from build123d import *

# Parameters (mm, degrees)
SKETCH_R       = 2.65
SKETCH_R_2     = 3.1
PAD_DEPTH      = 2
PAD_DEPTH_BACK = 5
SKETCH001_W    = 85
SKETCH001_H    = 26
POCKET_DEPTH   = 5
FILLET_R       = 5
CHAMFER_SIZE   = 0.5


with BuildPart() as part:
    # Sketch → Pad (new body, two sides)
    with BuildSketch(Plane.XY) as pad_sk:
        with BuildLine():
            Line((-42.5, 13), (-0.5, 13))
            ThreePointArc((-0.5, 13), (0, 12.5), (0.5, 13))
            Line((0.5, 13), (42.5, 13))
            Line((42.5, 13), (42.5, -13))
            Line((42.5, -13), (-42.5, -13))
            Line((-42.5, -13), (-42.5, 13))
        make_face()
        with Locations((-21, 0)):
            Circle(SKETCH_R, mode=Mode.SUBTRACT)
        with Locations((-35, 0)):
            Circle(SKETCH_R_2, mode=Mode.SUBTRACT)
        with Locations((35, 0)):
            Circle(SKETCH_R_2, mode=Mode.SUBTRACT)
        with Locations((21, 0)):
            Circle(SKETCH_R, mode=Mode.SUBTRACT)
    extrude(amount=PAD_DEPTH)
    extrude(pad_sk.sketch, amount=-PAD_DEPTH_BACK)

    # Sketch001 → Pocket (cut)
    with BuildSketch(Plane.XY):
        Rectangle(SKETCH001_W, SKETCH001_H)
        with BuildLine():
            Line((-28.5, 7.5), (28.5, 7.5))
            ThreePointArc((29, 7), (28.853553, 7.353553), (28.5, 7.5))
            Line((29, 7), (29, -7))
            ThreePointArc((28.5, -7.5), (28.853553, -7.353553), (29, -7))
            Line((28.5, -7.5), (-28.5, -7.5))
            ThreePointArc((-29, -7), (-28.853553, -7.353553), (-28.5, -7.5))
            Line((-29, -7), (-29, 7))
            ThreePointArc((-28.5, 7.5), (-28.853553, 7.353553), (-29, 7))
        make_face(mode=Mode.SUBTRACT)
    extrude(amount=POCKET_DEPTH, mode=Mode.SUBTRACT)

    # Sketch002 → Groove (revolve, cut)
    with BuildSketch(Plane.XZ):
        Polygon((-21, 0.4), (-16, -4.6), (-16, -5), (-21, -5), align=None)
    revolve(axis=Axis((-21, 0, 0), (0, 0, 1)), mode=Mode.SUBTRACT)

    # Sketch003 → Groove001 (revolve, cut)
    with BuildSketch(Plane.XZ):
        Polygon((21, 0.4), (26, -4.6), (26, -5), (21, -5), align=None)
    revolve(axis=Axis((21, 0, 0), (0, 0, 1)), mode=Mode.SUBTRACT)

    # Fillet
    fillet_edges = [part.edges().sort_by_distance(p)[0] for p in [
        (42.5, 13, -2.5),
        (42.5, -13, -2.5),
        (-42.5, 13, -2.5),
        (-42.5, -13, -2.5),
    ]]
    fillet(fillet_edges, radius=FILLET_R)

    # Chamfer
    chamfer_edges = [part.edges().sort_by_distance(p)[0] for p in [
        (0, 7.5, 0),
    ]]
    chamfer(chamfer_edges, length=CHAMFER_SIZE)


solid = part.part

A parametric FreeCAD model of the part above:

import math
import FreeCAD as App
import Part
import Sketcher

V = App.Vector
Q = App.Units.Quantity


def edges_at(feature, points):
    """Names of the edges that pass closest to the given points."""
    edges = feature.Shape.Edges
    near = lambda p: min(range(len(edges)), key=lambda i: edges[i].distToShape(Part.Vertex(*p))[0])
    return sorted({f"Edge{near(p) + 1}" for p in points})


def add_polygon(sketch, points):
    """Adds a closed chain of lines whose ends are joined by coincident constraints."""
    first, n = sketch.GeometryCount, len(points)
    for a, b in zip(points, points[1:] + points[:1]):
        sketch.addGeometry(Part.LineSegment(App.Vector(*a, 0), App.Vector(*b, 0)), False)
    for i in range(n):
        sketch.addConstraint(Sketcher.Constraint("Coincident", first + i, 2, first + (i + 1) % n, 1))

doc = App.newDocument("Part")
body = doc.addObject("PartDesign::Body", "Body")

# Sketch on XY plane
sketch1 = body.newObject("Sketcher::SketchObject", "Sketch")
sketch1.AttachmentSupport = (doc.getObject("XY_Plane"), [""])
sketch1.MapMode = "FlatFace"
sketch1.addGeometry([
    Part.LineSegment(V(-0.5, 13, 0), V(-42.5, 13, 0)),  # 0
    Part.LineSegment(V(-42.5, 13, 0), V(-42.5, -13, 0)),  # 1
    Part.LineSegment(V(-42.5, -13, 0), V(42.5, -13, 0)),  # 2
    Part.LineSegment(V(42.5, -13, 0), V(42.5, 13, 0)),  # 3
    Part.LineSegment(V(42.5, 13, 0), V(0.5, 13, 0)),  # 4
    Part.ArcOfCircle(Part.Circle(V(0, 13, 0), V(0, 0, 1), 0.5), math.radians(180), math.radians(360)),  # 5
    Part.Circle(V(35, 0, 0), V(0, 0, 1), 3.1),  # 6
    Part.Circle(V(21, 0, 0), V(0, 0, 1), 2.6),  # 7
    Part.Circle(V(-21, 0, 0), V(0, 0, 1), 2.6),  # 8
    Part.Circle(V(-35, 0, 0), V(0, 0, 1), 3.1),  # 9
], False)
sketch1.addConstraint([
    Sketcher.Constraint("Coincident", 0, 2, 1, 1),
    Sketcher.Constraint("Coincident", 1, 2, 2, 1),
    Sketcher.Constraint("Coincident", 2, 2, 3, 1),
    Sketcher.Constraint("Coincident", 3, 2, 4, 1),
    Sketcher.Constraint("Coincident", 4, 2, 5, 2),
    Sketcher.Constraint("Coincident", 5, 1, 0, 1),
    Sketcher.Constraint("Horizontal", 0),
    Sketcher.Constraint("Vertical", 1),
    Sketcher.Constraint("Horizontal", 2),
    Sketcher.Constraint("Vertical", 3),
    Sketcher.Constraint("Horizontal", 4),
    Sketcher.Constraint("Equal", 7, 8),
    Sketcher.Constraint("Equal", 6, 9),
    Sketcher.Constraint("Symmetric", 7, 3, 8, 3, -1, 1),
    Sketcher.Constraint("Symmetric", 6, 3, 9, 3, -1, 1),
    Sketcher.Constraint("Symmetric", 0, 2, 2, 2, -1, 1),
    Sketcher.Constraint("Symmetric", 4, 2, 5, 1, -2),
    Sketcher.Constraint("PointOnObject", 6, 3, -1),
    Sketcher.Constraint("PointOnObject", 7, 3, -1),
    Sketcher.Constraint("Horizontal", 5, 3, 0, 2),
    Sketcher.Constraint("Diameter", 6, Q("6.2 mm")),
    Sketcher.Constraint("Diameter", 7, Q("5.3 mm")),
    Sketcher.Constraint("Radius", 5, Q("0.5 mm")),
    Sketcher.Constraint("DistanceX", 0, 2, 0, 1, Q("42 mm")),
    Sketcher.Constraint("DistanceY", 1, 2, 1, 1, Q("26 mm")),
    Sketcher.Constraint("DistanceX", -1, 1, 6, 3, Q("35 mm")),
    Sketcher.Constraint("DistanceX", -1, 1, 7, 3, Q("21 mm")),
])
pad1 = body.newObject("PartDesign::Pad", "Pad")
pad1.Profile = sketch1
pad1.Type = "TwoLengths"
pad1.Length = 2
pad1.Length2 = 5

# Sketch on XY plane
sketch2 = body.newObject("Sketcher::SketchObject", "Sketch001")
sketch2.AttachmentSupport = (doc.getObject("XY_Plane"), [""])
sketch2.MapMode = "FlatFace"
add_polygon(sketch2, [(-42.5, 13), (-42.5, -13), (42.5, -13), (42.5, 13)])  # lines 0-3
sketch2.addGeometry(Part.ArcOfCircle(Part.Circle(V(-28.5, 7, 0), V(0, 0, 1), 0.5), math.radians(90), math.radians(180)), False)  # 4
sketch2.addGeometry(Part.LineSegment(V(-28.5, 7.5, 0), V(28.5, 7.5, 0)), False)  # 5
sketch2.addGeometry(Part.ArcOfCircle(Part.Circle(V(28.5, 7, 0), V(0, 0, 1), 0.5), math.radians(0), math.radians(90)), False)  # 6
sketch2.addGeometry(Part.LineSegment(V(29, 7, 0), V(29, -7, 0)), False)  # 7
sketch2.addGeometry(Part.ArcOfCircle(Part.Circle(V(28.5, -7, 0), V(0, 0, 1), 0.5), math.radians(-90), math.radians(0)), False)  # 8
sketch2.addGeometry(Part.LineSegment(V(28.5, -7.5, 0), V(-28.5, -7.5, 0)), False)  # 9
sketch2.addGeometry(Part.ArcOfCircle(Part.Circle(V(-28.5, -7, 0), V(0, 0, 1), 0.5), math.radians(-180), math.radians(-90)), False)  # 10
sketch2.addGeometry(Part.LineSegment(V(-29, -7, 0), V(-29, 7, 0)), False)  # 11
sketch2.addConstraint([
    Sketcher.Constraint("Coincident", 4, 1, 5, 1),
    Sketcher.Constraint("Coincident", 5, 2, 6, 2),
    Sketcher.Constraint("Coincident", 6, 1, 7, 1),
    Sketcher.Constraint("Coincident", 7, 2, 8, 2),
    Sketcher.Constraint("Coincident", 8, 1, 9, 1),
    Sketcher.Constraint("Coincident", 9, 2, 10, 2),
    Sketcher.Constraint("Coincident", 10, 1, 11, 1),
    Sketcher.Constraint("Coincident", 11, 2, 4, 2),
    Sketcher.Constraint("Vertical", 0),
    Sketcher.Constraint("Horizontal", 1),
    Sketcher.Constraint("Vertical", 2),
    Sketcher.Constraint("Horizontal", 3),
    Sketcher.Constraint("Horizontal", 5),
    Sketcher.Constraint("Vertical", 7),
    Sketcher.Constraint("Horizontal", 9),
    Sketcher.Constraint("Vertical", 11),
    Sketcher.Constraint("Equal", 4, 6),
    Sketcher.Constraint("Equal", 6, 8),
    Sketcher.Constraint("Equal", 8, 10),
    Sketcher.Constraint("Symmetric", 4, 3, 8, 3, -1, 1),
    Sketcher.Constraint("Symmetric", 0, 2, 2, 2, -1, 1),
    Sketcher.Constraint("Horizontal", 4, 3, 6, 1),
    Sketcher.Constraint("Horizontal", 10, 3, 7, 2),
    Sketcher.Constraint("Horizontal", 7, 2, 10, 1),
    Sketcher.Constraint("Horizontal", 6, 1, 11, 2),
    Sketcher.Constraint("Vertical", 10, 3, 4, 1),
    Sketcher.Constraint("Vertical", 8, 3, 5, 2),
    Sketcher.Constraint("Vertical", 5, 2, 8, 1),
    Sketcher.Constraint("Vertical", 4, 1, 9, 2),
    Sketcher.Constraint("Radius", 4, Q("0.500001 mm")),
    Sketcher.Constraint("DistanceX", 1, 1, 1, 2, Q("85 mm")),
    Sketcher.Constraint("DistanceX", 5, 1, 5, 2, Q("57 mm")),
    Sketcher.Constraint("DistanceY", 0, 2, 0, 1, Q("26 mm")),
    Sketcher.Constraint("DistanceY", 7, 2, 7, 1, Q("14 mm")),
])
pocket1 = body.newObject("PartDesign::Pocket", "Pocket")
pocket1.Profile = sketch2
pocket1.Length = 5
pocket1.Reversed = True

# Sketch on XZ plane
sketch3 = body.newObject("Sketcher::SketchObject", "Sketch002")
sketch3.AttachmentSupport = (doc.getObject("XZ_Plane"), [""])
sketch3.MapMode = "FlatFace"
add_polygon(sketch3, [(-16, -4.6), (-21, 0.4), (-21, -5), (-16, -5)])  # lines 0-3
sketch3.addGeometry(Part.LineSegment(V(-21, -5, 0), V(-21, 0.4, 0)), True)  # axis
sketch3.addConstraint([
    Sketcher.Constraint("Vertical", 1),
    Sketcher.Constraint("Horizontal", 2),
    Sketcher.Constraint("Vertical", 3),
    Sketcher.Constraint("Vertical", 4),
    Sketcher.Constraint("Coincident", 4, 1, 1, 2),
    Sketcher.Constraint("Equal", 1, 4),
    Sketcher.Constraint("DistanceX", 2, 1, 2, 2, Q("5 mm")),
    Sketcher.Constraint("Angle", 0, Q("135 deg")),
    Sketcher.Constraint("DistanceY", 1, 2, 1, 1, Q("5.4 mm")),
    Sketcher.Constraint("DistanceX", 0, 2, -1, 1, Q("21 mm")),
    Sketcher.Constraint("DistanceY", 1, 2, -1, 1, Q("5 mm")),
])
groove = body.newObject("PartDesign::Groove", "Groove")
groove.Profile = sketch3
groove.ReferenceAxis = (sketch3, ["Axis0"])
groove.Angle = 360

# Sketch on XZ plane
sketch4 = body.newObject("Sketcher::SketchObject", "Sketch003")
sketch4.AttachmentSupport = (doc.getObject("XZ_Plane"), [""])
sketch4.MapMode = "FlatFace"
add_polygon(sketch4, [(26, -4.6), (21, 0.4), (21, -5), (26, -5)])  # lines 0-3
sketch4.addGeometry(Part.LineSegment(V(21, -5, 0), V(21, 0.4, 0)), True)  # axis
sketch4.addConstraint([
    Sketcher.Constraint("Vertical", 1),
    Sketcher.Constraint("Horizontal", 2),
    Sketcher.Constraint("Vertical", 3),
    Sketcher.Constraint("Vertical", 4),
    Sketcher.Constraint("Coincident", 4, 1, 1, 2),
    Sketcher.Constraint("Equal", 1, 4),
    Sketcher.Constraint("DistanceX", 2, 1, 2, 2, Q("5 mm")),
    Sketcher.Constraint("Angle", 0, Q("135 deg")),
    Sketcher.Constraint("DistanceY", 1, 2, 1, 1, Q("5.4 mm")),
    Sketcher.Constraint("DistanceX", -1, 1, 0, 2, Q("21 mm")),
    Sketcher.Constraint("DistanceY", 1, 2, -1, 1, Q("5 mm")),
])
groove2 = body.newObject("PartDesign::Groove", "Groove001")
groove2.Profile = sketch4
groove2.ReferenceAxis = (sketch4, ["Axis0"])
groove2.Angle = 360
doc.recompute()

fillet = body.newObject("PartDesign::Fillet", "Fillet")
fillet.Base = (groove2, edges_at(groove2, [
    (42.5, 13, -2.5),
    (42.5, -13, -2.5),
    (-42.5, 13, -2.5),
    (-42.5, -13, -2.5),
]))
fillet.Radius = 5
doc.recompute()

chamfer = body.newObject("PartDesign::Chamfer", "Chamfer")
chamfer.Base = (fillet, edges_at(fillet, [(0, 7.5, 0)]))
chamfer.Size = 0.5

doc.recompute()
